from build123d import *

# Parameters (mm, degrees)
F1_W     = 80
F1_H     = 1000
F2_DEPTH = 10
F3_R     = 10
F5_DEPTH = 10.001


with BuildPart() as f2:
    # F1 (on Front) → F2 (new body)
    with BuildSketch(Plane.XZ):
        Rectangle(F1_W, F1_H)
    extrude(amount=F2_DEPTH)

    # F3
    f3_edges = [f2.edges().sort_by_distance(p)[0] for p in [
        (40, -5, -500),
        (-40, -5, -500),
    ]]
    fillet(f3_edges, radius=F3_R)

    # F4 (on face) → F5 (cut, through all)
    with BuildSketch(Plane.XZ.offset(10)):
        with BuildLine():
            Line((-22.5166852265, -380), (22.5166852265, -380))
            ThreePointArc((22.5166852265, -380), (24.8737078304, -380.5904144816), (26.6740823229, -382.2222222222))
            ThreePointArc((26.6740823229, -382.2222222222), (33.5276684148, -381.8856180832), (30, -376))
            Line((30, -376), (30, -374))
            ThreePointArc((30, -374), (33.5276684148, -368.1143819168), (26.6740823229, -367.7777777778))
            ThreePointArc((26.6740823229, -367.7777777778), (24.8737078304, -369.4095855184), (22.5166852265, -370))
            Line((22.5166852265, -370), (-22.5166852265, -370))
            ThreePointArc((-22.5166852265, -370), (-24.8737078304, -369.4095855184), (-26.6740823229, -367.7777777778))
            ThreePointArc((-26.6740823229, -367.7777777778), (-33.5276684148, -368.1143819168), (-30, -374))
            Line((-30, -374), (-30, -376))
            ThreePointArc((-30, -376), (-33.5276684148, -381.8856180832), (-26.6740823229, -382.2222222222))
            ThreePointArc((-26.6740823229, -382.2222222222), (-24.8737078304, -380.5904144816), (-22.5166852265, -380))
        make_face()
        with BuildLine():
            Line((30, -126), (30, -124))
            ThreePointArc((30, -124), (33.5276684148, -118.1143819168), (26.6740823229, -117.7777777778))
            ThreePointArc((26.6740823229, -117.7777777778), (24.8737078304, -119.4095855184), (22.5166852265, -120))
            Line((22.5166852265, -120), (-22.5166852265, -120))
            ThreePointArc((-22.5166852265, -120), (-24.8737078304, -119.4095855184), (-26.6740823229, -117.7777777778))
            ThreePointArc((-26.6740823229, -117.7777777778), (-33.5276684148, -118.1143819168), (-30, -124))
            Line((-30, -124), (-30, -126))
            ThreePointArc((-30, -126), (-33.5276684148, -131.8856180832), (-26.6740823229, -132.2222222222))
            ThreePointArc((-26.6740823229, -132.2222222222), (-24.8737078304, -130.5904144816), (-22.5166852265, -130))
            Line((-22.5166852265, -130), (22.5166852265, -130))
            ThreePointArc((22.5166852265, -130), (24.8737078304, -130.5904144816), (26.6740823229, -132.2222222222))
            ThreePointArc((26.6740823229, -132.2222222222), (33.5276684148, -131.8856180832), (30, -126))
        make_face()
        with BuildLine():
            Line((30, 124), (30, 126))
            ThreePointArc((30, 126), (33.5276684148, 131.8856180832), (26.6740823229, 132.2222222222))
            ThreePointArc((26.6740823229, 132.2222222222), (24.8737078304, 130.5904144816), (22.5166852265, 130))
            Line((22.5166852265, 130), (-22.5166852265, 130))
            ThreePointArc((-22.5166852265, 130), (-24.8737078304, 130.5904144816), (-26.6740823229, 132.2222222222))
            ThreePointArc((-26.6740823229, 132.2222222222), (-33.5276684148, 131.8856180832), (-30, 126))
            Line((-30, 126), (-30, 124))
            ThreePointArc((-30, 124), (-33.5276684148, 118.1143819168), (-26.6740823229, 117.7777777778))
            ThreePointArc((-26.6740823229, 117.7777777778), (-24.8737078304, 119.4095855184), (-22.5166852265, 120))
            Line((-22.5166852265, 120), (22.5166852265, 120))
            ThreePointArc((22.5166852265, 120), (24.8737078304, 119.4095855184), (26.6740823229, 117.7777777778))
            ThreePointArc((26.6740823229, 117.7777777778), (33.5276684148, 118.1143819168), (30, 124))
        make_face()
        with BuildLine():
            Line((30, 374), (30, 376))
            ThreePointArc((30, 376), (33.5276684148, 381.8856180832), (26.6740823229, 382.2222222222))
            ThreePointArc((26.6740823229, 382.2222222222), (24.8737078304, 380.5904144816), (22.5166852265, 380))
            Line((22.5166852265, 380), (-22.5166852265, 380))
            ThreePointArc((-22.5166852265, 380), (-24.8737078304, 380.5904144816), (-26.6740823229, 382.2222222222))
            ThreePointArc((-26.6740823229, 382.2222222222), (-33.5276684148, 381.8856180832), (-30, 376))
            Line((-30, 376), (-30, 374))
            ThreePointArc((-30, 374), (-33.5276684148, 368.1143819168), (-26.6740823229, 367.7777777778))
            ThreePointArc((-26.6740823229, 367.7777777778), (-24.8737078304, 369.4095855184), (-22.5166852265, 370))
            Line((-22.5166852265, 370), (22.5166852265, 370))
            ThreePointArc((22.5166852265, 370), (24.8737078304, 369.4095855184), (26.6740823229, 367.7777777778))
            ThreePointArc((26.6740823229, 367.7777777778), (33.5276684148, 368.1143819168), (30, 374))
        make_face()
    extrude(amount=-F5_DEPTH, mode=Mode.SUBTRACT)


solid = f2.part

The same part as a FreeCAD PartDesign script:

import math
import FreeCAD as App
import Part
import Sketcher

V = App.Vector


def edges_at(feature, points):
    """Names of the edges that pass closest to the given points."""
    edges = feature.Shape.Edges
    near = lambda p: min(range(len(edges)), key=lambda i: edges[i].distToShape(Part.Vertex(*p))[0])
    return sorted({f"Edge{near(p) + 1}" for p in points})


def add_polygon(sketch, points):
    """Adds a closed chain of lines whose ends are joined by coincident constraints."""
    first, n = sketch.GeometryCount, len(points)
    for a, b in zip(points, points[1:] + points[:1]):
        sketch.addGeometry(Part.LineSegment(App.Vector(*a, 0), App.Vector(*b, 0)), False)
    for i in range(n):
        sketch.addConstraint(Sketcher.Constraint("Coincident", first + i, 2, first + (i + 1) % n, 1))

doc = App.newDocument("Part")
params = doc.addObject("Spreadsheet::Sheet", "Params")
for row, (alias, value) in enumerate([
    ("sketch1_width", "80 mm"),
    ("sketch1_height", "1000 mm"),
    ("pad1_length", "10 mm"),
    ("fillet_radius", "10 mm"),
    ("sketch2_radius", "5 mm"),
    ("sketch2_radius2", "4 mm"),
    ("sketch2_height", "2 mm"),
], start=1):
    params.set(f"A{row}", alias)
    params.set(f"B{row}", "=" + value)
    params.setAlias(f"B{row}", alias)

body = doc.addObject("PartDesign::Body", "Body")

# Sketch on XZ plane
sketch1 = body.newObject("Sketcher::SketchObject", "Sketch")
sketch1.AttachmentSupport = (doc.getObject("XZ_Plane"), [""])
sketch1.MapMode = "FlatFace"
add_polygon(sketch1, [(-40, 500), (-40, -500), (40, -500), (40, 500)])  # lines 0-3
sketch1.addConstraint([
    Sketcher.Constraint("Vertical", 0),
    Sketcher.Constraint("Horizontal", 1),
    Sketcher.Constraint("Vertical", 2),
    Sketcher.Constraint("Horizontal", 3),
    Sketcher.Constraint("Symmetric", 0, 2, 2, 2, -1, 1),
    Sketcher.Constraint("DistanceX", 1, 1, 1, 2, 80.0),
    Sketcher.Constraint("DistanceY", 0, 2, 0, 1, 1000.0),
])
sketch1.setExpression("Constraints[9]", "Params.sketch1_width")
sketch1.setExpression("Constraints[10]", "Params.sketch1_height")
pad1 = body.newObject("PartDesign::Pad", "Pad")
pad1.Profile = sketch1
pad1.setExpression("Length", "Params.pad1_length")
doc.recompute()

fillet = body.newObject("PartDesign::Fillet", "Fillet")
fillet.Base = (pad1, edges_at(pad1, [(40, -5, -500), (-40, -5, -500)]))
fillet.setExpression("Radius", "Params.fillet_radius")

# Sketch on XZ plane
sketch2 = body.newObject("Sketcher::SketchObject", "Sketch001")
sketch2.AttachmentSupport = (doc.getObject("XZ_Plane"), [""])
sketch2.MapMode = "FlatFace"
sketch2.AttachmentOffset = App.Placement(V(0, 0, 10), App.Rotation())
sketch2.addGeometry([
    Part.LineSegment(V(-22.5, -380, 0), V(22.5, -380, 0)),  # 0
    Part.ArcOfCircle(Part.Circle(V(22.5, -385, 0), V(0, 0, 1), 5), math.radians(34), math.radians(90)),  # 1
    Part.ArcOfCircle(Part.Circle(V(30, -380, 0), V(0, 0, 1), 4), math.radians(-146), math.radians(90)),  # 2
    Part.LineSegment(V(30, -376, 0), V(30, -374, 0)),  # 3
    Part.ArcOfCircle(Part.Circle(V(30, -370, 0), V(0, 0, 1), 4), math.radians(-90), math.radians(146)),  # 4
    Part.ArcOfCircle(Part.Circle(V(22.5, -365, 0), V(0, 0, 1), 5), math.radians(-90), math.radians(-34)),  # 5
    Part.LineSegment(V(22.5, -370, 0), V(-22.5, -370, 0)),  # 6
    Part.ArcOfCircle(Part.Circle(V(-22.5, -365, 0), V(0, 0, 1), 5), math.radians(-146), math.radians(-90)),  # 7
    Part.ArcOfCircle(Part.Circle(V(-30, -370, 0), V(0, 0, 1), 4), math.radians(34), math.radians(270)),  # 8
    Part.LineSegment(V(-30, -374, 0), V(-30, -376, 0)),  # 9
    Part.ArcOfCircle(Part.Circle(V(-30, -380, 0), V(0, 0, 1), 4), math.radians(90), math.radians(326)),  # 10
    Part.ArcOfCircle(Part.Circle(V(-22.5, -385, 0), V(0, 0, 1), 5), math.radians(90), math.radians(146)),  # 11
    Part.LineSegment(V(30, -126, 0), V(30, -124, 0)),  # 12
    Part.ArcOfCircle(Part.Circle(V(30, -120, 0), V(0, 0, 1), 4), math.radians(-90), math.radians(146)),  # 13
    Part.ArcOfCircle(Part.Circle(V(22.5, -115, 0), V(0, 0, 1), 5), math.radians(-90), math.radians(-34)),  # 14
    Part.LineSegment(V(22.5, -120, 0), V(-22.5, -120, 0)),  # 15
    Part.ArcOfCircle(Part.Circle(V(-22.5, -115, 0), V(0, 0, 1), 5), math.radians(-146), math.radians(-90)),  # 16
    Part.ArcOfCircle(Part.Circle(V(-30, -120, 0), V(0, 0, 1), 4), math.radians(34), math.radians(270)),  # 17
    Part.LineSegment(V(-30, -124, 0), V(-30, -126, 0)),  # 18
    Part.ArcOfCircle(Part.Circle(V(-30, -130, 0), V(0, 0, 1), 4), math.radians(90), math.radians(326)),  # 19
    Part.ArcOfCircle(Part.Circle(V(-22.5, -135, 0), V(0, 0, 1), 5), math.radians(90), math.radians(146)),  # 20
    Part.LineSegment(V(-22.5, -130, 0), V(22.5, -130, 0)),  # 21
    Part.ArcOfCircle(Part.Circle(V(22.5, -135, 0), V(0, 0, 1), 5), math.radians(34), math.radians(90)),  # 22
    Part.ArcOfCircle(Part.Circle(V(30, -130, 0), V(0, 0, 1), 4), math.radians(-146), math.radians(90)),  # 23
    Part.LineSegment(V(30, 124, 0), V(30, 126, 0)),  # 24
    Part.ArcOfCircle(Part.Circle(V(30, 130, 0), V(0, 0, 1), 4), math.radians(-90), math.radians(146)),  # 25
    Part.ArcOfCircle(Part.Circle(V(22.5, 135, 0), V(0, 0, 1), 5), math.radians(-90), math.radians(-34)),  # 26
    Part.LineSegment(V(22.5, 130, 0), V(-22.5, 130, 0)),  # 27
    Part.ArcOfCircle(Part.Circle(V(-22.5, 135, 0), V(0, 0, 1), 5), math.radians(-146), math.radians(-90)),  # 28
    Part.ArcOfCircle(Part.Circle(V(-30, 130, 0), V(0, 0, 1), 4), math.radians(34), math.radians(270)),  # 29
    Part.LineSegment(V(-30, 126, 0), V(-30, 124, 0)),  # 30
    Part.ArcOfCircle(Part.Circle(V(-30, 120, 0), V(0, 0, 1), 4), math.radians(90), math.radians(326)),  # 31
    Part.ArcOfCircle(Part.Circle(V(-22.5, 115, 0), V(0, 0, 1), 5), math.radians(90), math.radians(146)),  # 32
    Part.LineSegment(V(-22.5, 120, 0), V(22.5, 120, 0)),  # 33
    Part.ArcOfCircle(Part.Circle(V(22.5, 115, 0), V(0, 0, 1), 5), math.radians(34), math.radians(90)),  # 34
    Part.ArcOfCircle(Part.Circle(V(30, 120, 0), V(0, 0, 1), 4), math.radians(-146), math.radians(90)),  # 35
    Part.LineSegment(V(30, 374, 0), V(30, 376, 0)),  # 36
    Part.ArcOfCircle(Part.Circle(V(30, 380, 0), V(0, 0, 1), 4), math.radians(-90), math.radians(146)),  # 37
    Part.ArcOfCircle(Part.Circle(V(22.5, 385, 0), V(0, 0, 1), 5), math.radians(-90), math.radians(-34)),  # 38
    Part.LineSegment(V(22.5, 380, 0), V(-22.5, 380, 0)),  # 39
    Part.ArcOfCircle(Part.Circle(V(-22.5, 385, 0), V(0, 0, 1), 5), math.radians(-146), math.radians(-90)),  # 40
    Part.ArcOfCircle(Part.Circle(V(-30, 380, 0), V(0, 0, 1), 4), math.radians(34), math.radians(270)),  # 41
    Part.LineSegment(V(-30, 376, 0), V(-30, 374, 0)),  # 42
    Part.ArcOfCircle(Part.Circle(V(-30, 370, 0), V(0, 0, 1), 4), math.radians(90), math.radians(326)),  # 43
    Part.ArcOfCircle(Part.Circle(V(-22.5, 365, 0), V(0, 0, 1), 5), math.radians(90), math.radians(146)),  # 44
    Part.LineSegment(V(-22.5, 370, 0), V(22.5, 370, 0)),  # 45
    Part.ArcOfCircle(Part.Circle(V(22.5, 365, 0), V(0, 0, 1), 5), math.radians(34), math.radians(90)),  # 46
    Part.ArcOfCircle(Part.Circle(V(30, 370, 0), V(0, 0, 1), 4), math.radians(-146), math.radians(90)),  # 47
], False)
sketch2.addConstraint([
    Sketcher.Constraint("Tangent", 0, 2, 1, 2),
    Sketcher.Constraint("Tangent", 1, 1, 2, 1),
    Sketcher.Constraint("Coincident", 2, 2, 3, 1),
    Sketcher.Constraint("Coincident", 3, 2, 4, 1),
    Sketcher.Constraint("Tangent", 4, 2, 5, 2),
    Sketcher.Constraint("Tangent", 5, 1, 6, 1),
    Sketcher.Constraint("Tangent", 6, 2, 7, 2),
    Sketcher.Constraint("Tangent", 7, 1, 8, 1),
    Sketcher.Constraint("Coincident", 8, 2, 9, 1),
    Sketcher.Constraint("Coincident", 9, 2, 10, 1),
    Sketcher.Constraint("Tangent", 10, 2, 11, 2),
    Sketcher.Constraint("Tangent", 11, 1, 0, 1),
    Sketcher.Constraint("Coincident", 12, 2, 13, 1),
    Sketcher.Constraint("Tangent", 13, 2, 14, 2),
    Sketcher.Constraint("Tangent", 14, 1, 15, 1),
    Sketcher.Constraint("Tangent", 15, 2, 16, 2),
    Sketcher.Constraint("Tangent", 16, 1, 17, 1),
    Sketcher.Constraint("Coincident", 17, 2, 18, 1),
    Sketcher.Constraint("Coincident", 18, 2, 19, 1),
    Sketcher.Constraint("Tangent", 19, 2, 20, 2),
    Sketcher.Constraint("Tangent", 20, 1, 21, 1),
    Sketcher.Constraint("Tangent", 21, 2, 22, 2),
    Sketcher.Constraint("Tangent", 22, 1, 23, 1),
    Sketcher.Constraint("Coincident", 23, 2, 12, 1),
    Sketcher.Constraint("Coincident", 24, 2, 25, 1),
    Sketcher.Constraint("Tangent", 25, 2, 26, 2),
    Sketcher.Constraint("Tangent", 26, 1, 27, 1),
    Sketcher.Constraint("Tangent", 27, 2, 28, 2),
    Sketcher.Constraint("Tangent", 28, 1, 29, 1),
    Sketcher.Constraint("Coincident", 29, 2, 30, 1),
    Sketcher.Constraint("Coincident", 30, 2, 31, 1),
    Sketcher.Constraint("Tangent", 31, 2, 32, 2),
    Sketcher.Constraint("Tangent", 32, 1, 33, 1),
    Sketcher.Constraint("Tangent", 33, 2, 34, 2),
    Sketcher.Constraint("Tangent", 34, 1, 35, 1),
    Sketcher.Constraint("Coincident", 35, 2, 24, 1),
    Sketcher.Constraint("Coincident", 36, 2, 37, 1),
    Sketcher.Constraint("Tangent", 37, 2, 38, 2),
    Sketcher.Constraint("Tangent", 38, 1, 39, 1),
    Sketcher.Constraint("Tangent", 39, 2, 40, 2),
    Sketcher.Constraint("Tangent", 40, 1, 41, 1),
    Sketcher.Constraint("Coincident", 41, 2, 42, 1),
    Sketcher.Constraint("Coincident", 42, 2, 43, 1),
    Sketcher.Constraint("Tangent", 43, 2, 44, 2),
    Sketcher.Constraint("Tangent", 44, 1, 45, 1),
    Sketcher.Constraint("Tangent", 45, 2, 46, 2),
    Sketcher.Constraint("Tangent", 46, 1, 47, 1),
    Sketcher.Constraint("Coincident", 47, 2, 36, 1),
    Sketcher.Constraint("Horizontal", 0),
    Sketcher.Constraint("Vertical", 3),
    Sketcher.Constraint("Horizontal", 6),
    Sketcher.Constraint("Vertical", 9),
    Sketcher.Constraint("Vertical", 12),
    Sketcher.Constraint("Horizontal", 15),
    Sketcher.Constraint("Vertical", 18),
    Sketcher.Constraint("Horizontal", 21),
    Sketcher.Constraint("Vertical", 24),
    Sketcher.Constraint("Horizontal", 27),
    Sketcher.Constraint("Vertical", 30),
    Sketcher.Constraint("Horizontal", 33),
    Sketcher.Constraint("Vertical", 36),
    Sketcher.Constraint("Horizontal", 39),
    Sketcher.Constraint("Vertical", 42),
    Sketcher.Constraint("Horizontal", 45),
    Sketcher.Constraint("Equal", 2, 4),
    Sketcher.Constraint("Equal", 1, 5),
    Sketcher.Constraint("Equal", 5, 7),
    Sketcher.Constraint("Equal", 4, 8),
    Sketcher.Constraint("Equal", 8, 10),
    Sketcher.Constraint("Equal", 7, 11),
    Sketcher.Constraint("Equal", 10, 13),
    Sketcher.Constraint("Equal", 11, 14),
    Sketcher.Constraint("Equal", 14, 16),
    Sketcher.Constraint("Equal", 13, 17),
    Sketcher.Constraint("Equal", 17, 19),
    Sketcher.Constraint("Equal", 16, 20),
    Sketcher.Constraint("Equal", 20, 22),
    Sketcher.Constraint("Equal", 19, 23),
    Sketcher.Constraint("Equal", 23, 25),
    Sketcher.Constraint("Equal", 22, 26),
    Sketcher.Constraint("Equal", 26, 28),
    Sketcher.Constraint("Equal", 25, 29),
    Sketcher.Constraint("Equal", 29, 31),
    Sketcher.Constraint("Equal", 28, 32),
    Sketcher.Constraint("Equal", 32, 34),
    Sketcher.Constraint("Equal", 31, 35),
    Sketcher.Constraint("Equal", 35, 37),
    Sketcher.Constraint("Equal", 34, 38),
    Sketcher.Constraint("Equal", 38, 40),
    Sketcher.Constraint("Equal", 37, 41),
    Sketcher.Constraint("Equal", 41, 43),
    Sketcher.Constraint("Equal", 40, 44),
    Sketcher.Constraint("Equal", 44, 46),
    Sketcher.Constraint("Equal", 43, 47),
    Sketcher.Constraint("Symmetric", 19, 3, 25, 3, -1, 1),
    Sketcher.Constraint("Symmetric", 22, 3, 28, 3, -1, 1),
    Sketcher.Constraint("Symmetric", 13, 3, 31, 3, -1, 1),
    Sketcher.Constraint("Symmetric", 16, 3, 34, 3, -1, 1),
    Sketcher.Constraint("Symmetric", 10, 3, 37, 3, -1, 1),
    Sketcher.Constraint("Symmetric", 1, 3, 40, 3, -1, 1),
    Sketcher.Constraint("Symmetric", 4, 3, 43, 3, -1, 1),
    Sketcher.Constraint("Symmetric", 7, 3, 46, 3, -1, 1),
    Sketcher.Constraint("Symmetric", 23, 2, 29, 2, -1, 1),
    Sketcher.Constraint("Symmetric", 17, 2, 35, 2, -1, 1),
    Sketcher.Constraint("Symmetric", 2, 2, 41, 2, -1, 1),
    Sketcher.Constraint("Symmetric", 8, 2, 47, 2, -1, 1),
    Sketcher.Constraint("Symmetric", 4, 3, 8, 3, -2),
    Sketcher.Constraint("Symmetric", 2, 3, 10, 3, -2),
    Sketcher.Constraint("Symmetric", 13, 3, 17, 3, -2),
    Sketcher.Constraint("Symmetric", 19, 3, 23, 3, -2),
    Sketcher.Constraint("Horizontal", 10, 3, 0, 2),
    Sketcher.Constraint("Horizontal", 8, 3, 5, 1),
    Sketcher.Constraint("Horizontal", 17, 3, 14, 1),
    Sketcher.Constraint("Horizontal", 23, 3, 20, 1),
    Sketcher.Constraint("Vertical", 2, 3, 4, 3),
    Sketcher.Constraint("Vertical", 4, 3, 13, 3),
    Sketcher.Constraint("Vertical", 17, 3, 19, 3),
    Sketcher.Constraint("Vertical", 47, 3, 2, 2),
    Sketcher.Constraint("Vertical", 43, 3, 8, 2),
    Sketcher.Constraint("Vertical", 3, 2, 12, 2),
    Sketcher.Constraint("Vertical", 9, 2, 17, 2),
    Sketcher.Constraint("Equal", 9, 12),
    Sketcher.Constraint("Radius", 1, 5.0),
    Sketcher.Constraint("Radius", 2, 4.0),
    Sketcher.Constraint("DistanceY", 3, 1, 3, 2, 2.0),
    Sketcher.Constraint("DistanceY", 1, 3, -1, 1, 385.0),
    Sketcher.Constraint("DistanceX", -1, 1, 2, 3, 30.0),
    Sketcher.Constraint("DistanceY", 13, 3, -1, 1, 120.0),
])
sketch2.setExpression("Constraints[122]", "Params.sketch2_radius")
sketch2.setExpression("Constraints[123]", "Params.sketch2_radius2")
sketch2.setExpression("Constraints[124]", "Params.sketch2_height")
pocket1 = body.newObject("PartDesign::Pocket", "Pocket")
pocket1.Profile = sketch2
pocket1.Type = "ThroughAll"

doc.recompute()
